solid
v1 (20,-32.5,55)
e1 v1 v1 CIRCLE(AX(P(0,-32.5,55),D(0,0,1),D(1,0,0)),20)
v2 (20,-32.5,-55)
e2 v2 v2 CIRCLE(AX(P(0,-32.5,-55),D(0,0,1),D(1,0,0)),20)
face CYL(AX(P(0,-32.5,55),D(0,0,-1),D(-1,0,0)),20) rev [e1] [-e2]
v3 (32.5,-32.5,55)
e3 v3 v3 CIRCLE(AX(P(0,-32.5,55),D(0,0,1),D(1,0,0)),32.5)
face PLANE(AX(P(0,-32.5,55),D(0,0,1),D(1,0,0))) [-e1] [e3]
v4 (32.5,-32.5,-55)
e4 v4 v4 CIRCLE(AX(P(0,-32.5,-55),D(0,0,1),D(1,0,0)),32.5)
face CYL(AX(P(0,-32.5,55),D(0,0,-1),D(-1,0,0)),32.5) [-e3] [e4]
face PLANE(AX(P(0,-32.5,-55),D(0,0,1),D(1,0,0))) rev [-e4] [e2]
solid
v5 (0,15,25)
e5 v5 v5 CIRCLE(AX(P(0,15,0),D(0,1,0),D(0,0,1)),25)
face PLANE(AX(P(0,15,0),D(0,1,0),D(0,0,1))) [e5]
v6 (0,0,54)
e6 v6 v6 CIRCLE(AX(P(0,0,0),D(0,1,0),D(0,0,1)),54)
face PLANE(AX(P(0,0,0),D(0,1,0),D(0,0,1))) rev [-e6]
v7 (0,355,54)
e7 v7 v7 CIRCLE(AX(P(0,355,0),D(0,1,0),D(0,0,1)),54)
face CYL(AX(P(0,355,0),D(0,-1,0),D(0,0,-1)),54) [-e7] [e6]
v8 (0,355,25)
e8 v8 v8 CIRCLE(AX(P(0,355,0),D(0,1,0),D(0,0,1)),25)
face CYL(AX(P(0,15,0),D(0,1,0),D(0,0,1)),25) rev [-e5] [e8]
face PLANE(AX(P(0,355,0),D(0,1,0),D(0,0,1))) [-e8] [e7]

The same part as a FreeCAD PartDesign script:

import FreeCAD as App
import Part
import Sketcher
from FreeCAD import Vector

doc = App.newDocument("Part")
body = doc.addObject("PartDesign::Body", "Body")

# Sketch on XZ plane
sketch1 = doc.addObject("Sketcher::SketchObject", "Sketch")
body.addObject(sketch1)
sketch1.AttachmentSupport = (doc.XZ_Plane, [""])
sketch1.MapMode = "FlatFace"
sketch1.addGeometry(Part.Circle(Vector(0, 0, 0), Vector(0, 0, 1), 54), False)
sketch1.addConstraint(Sketcher.Constraint("Coincident", 0, 3, -1, 1))
sketch1.addConstraint(Sketcher.Constraint("Diameter", 0, 108.0))
pad1 = doc.addObject("PartDesign::Pad", "Pad")
body.addObject(pad1)
pad1.Profile = sketch1
pad1.Length = 355
pad1.Reversed = True

# Sketch on XZ plane
sketch2 = doc.addObject("Sketcher::SketchObject", "Sketch001")
body.addObject(sketch2)
sketch2.AttachmentSupport = (doc.XZ_Plane, [""])
sketch2.MapMode = "FlatFace"
sketch2.AttachmentOffset = App.Placement(Vector(0, 0, -355), App.Rotation())
sketch2.addGeometry(Part.Circle(Vector(0, 0, 0), Vector(0, 0, 1), 25), False)
sketch2.addConstraint(Sketcher.Constraint("Coincident", 0, 3, -1, 1))
sketch2.addConstraint(Sketcher.Constraint("Diameter", 0, 50.0))
pocket1 = doc.addObject("PartDesign::Pocket", "Pocket")
body.addObject(pocket1)
pocket1.Profile = sketch2
pocket1.Length = 340
pocket1.Reversed = True
body2 = doc.addObject("PartDesign::Body", "Body001")

# Sketch on XY plane
sketch3 = doc.addObject("Sketcher::SketchObject", "Sketch002")
body2.addObject(sketch3)
sketch3.AttachmentSupport = (doc.getObject("XY_Plane001"), [""])
sketch3.MapMode = "FlatFace"
sketch3.addGeometry(Part.Circle(Vector(0, -32.5, 0), Vector(0, 0, 1), 32.5), False)
sketch3.addGeometry(Part.Circle(Vector(0, -32.5, 0), Vector(0, 0, 1), 20), False)
sketch3.addConstraint(Sketcher.Constraint("Coincident", 1, 3, 0, 3))
sketch3.addConstraint(Sketcher.Constraint("PointOnObject", 0, 3, -2))
sketch3.addConstraint(Sketcher.Constraint("Diameter", 0, 65.0))
sketch3.addConstraint(Sketcher.Constraint("Diameter", 1, 40.0))
sketch3.addConstraint(Sketcher.Constraint("DistanceY", 0, 3, -1, 1, 32.5))
pad2 = doc.addObject("PartDesign::Pad", "Pad001")
body2.addObject(pad2)
pad2.Profile = sketch3
pad2.Length = 110
pad2.Midplane = True

doc.recompute()
